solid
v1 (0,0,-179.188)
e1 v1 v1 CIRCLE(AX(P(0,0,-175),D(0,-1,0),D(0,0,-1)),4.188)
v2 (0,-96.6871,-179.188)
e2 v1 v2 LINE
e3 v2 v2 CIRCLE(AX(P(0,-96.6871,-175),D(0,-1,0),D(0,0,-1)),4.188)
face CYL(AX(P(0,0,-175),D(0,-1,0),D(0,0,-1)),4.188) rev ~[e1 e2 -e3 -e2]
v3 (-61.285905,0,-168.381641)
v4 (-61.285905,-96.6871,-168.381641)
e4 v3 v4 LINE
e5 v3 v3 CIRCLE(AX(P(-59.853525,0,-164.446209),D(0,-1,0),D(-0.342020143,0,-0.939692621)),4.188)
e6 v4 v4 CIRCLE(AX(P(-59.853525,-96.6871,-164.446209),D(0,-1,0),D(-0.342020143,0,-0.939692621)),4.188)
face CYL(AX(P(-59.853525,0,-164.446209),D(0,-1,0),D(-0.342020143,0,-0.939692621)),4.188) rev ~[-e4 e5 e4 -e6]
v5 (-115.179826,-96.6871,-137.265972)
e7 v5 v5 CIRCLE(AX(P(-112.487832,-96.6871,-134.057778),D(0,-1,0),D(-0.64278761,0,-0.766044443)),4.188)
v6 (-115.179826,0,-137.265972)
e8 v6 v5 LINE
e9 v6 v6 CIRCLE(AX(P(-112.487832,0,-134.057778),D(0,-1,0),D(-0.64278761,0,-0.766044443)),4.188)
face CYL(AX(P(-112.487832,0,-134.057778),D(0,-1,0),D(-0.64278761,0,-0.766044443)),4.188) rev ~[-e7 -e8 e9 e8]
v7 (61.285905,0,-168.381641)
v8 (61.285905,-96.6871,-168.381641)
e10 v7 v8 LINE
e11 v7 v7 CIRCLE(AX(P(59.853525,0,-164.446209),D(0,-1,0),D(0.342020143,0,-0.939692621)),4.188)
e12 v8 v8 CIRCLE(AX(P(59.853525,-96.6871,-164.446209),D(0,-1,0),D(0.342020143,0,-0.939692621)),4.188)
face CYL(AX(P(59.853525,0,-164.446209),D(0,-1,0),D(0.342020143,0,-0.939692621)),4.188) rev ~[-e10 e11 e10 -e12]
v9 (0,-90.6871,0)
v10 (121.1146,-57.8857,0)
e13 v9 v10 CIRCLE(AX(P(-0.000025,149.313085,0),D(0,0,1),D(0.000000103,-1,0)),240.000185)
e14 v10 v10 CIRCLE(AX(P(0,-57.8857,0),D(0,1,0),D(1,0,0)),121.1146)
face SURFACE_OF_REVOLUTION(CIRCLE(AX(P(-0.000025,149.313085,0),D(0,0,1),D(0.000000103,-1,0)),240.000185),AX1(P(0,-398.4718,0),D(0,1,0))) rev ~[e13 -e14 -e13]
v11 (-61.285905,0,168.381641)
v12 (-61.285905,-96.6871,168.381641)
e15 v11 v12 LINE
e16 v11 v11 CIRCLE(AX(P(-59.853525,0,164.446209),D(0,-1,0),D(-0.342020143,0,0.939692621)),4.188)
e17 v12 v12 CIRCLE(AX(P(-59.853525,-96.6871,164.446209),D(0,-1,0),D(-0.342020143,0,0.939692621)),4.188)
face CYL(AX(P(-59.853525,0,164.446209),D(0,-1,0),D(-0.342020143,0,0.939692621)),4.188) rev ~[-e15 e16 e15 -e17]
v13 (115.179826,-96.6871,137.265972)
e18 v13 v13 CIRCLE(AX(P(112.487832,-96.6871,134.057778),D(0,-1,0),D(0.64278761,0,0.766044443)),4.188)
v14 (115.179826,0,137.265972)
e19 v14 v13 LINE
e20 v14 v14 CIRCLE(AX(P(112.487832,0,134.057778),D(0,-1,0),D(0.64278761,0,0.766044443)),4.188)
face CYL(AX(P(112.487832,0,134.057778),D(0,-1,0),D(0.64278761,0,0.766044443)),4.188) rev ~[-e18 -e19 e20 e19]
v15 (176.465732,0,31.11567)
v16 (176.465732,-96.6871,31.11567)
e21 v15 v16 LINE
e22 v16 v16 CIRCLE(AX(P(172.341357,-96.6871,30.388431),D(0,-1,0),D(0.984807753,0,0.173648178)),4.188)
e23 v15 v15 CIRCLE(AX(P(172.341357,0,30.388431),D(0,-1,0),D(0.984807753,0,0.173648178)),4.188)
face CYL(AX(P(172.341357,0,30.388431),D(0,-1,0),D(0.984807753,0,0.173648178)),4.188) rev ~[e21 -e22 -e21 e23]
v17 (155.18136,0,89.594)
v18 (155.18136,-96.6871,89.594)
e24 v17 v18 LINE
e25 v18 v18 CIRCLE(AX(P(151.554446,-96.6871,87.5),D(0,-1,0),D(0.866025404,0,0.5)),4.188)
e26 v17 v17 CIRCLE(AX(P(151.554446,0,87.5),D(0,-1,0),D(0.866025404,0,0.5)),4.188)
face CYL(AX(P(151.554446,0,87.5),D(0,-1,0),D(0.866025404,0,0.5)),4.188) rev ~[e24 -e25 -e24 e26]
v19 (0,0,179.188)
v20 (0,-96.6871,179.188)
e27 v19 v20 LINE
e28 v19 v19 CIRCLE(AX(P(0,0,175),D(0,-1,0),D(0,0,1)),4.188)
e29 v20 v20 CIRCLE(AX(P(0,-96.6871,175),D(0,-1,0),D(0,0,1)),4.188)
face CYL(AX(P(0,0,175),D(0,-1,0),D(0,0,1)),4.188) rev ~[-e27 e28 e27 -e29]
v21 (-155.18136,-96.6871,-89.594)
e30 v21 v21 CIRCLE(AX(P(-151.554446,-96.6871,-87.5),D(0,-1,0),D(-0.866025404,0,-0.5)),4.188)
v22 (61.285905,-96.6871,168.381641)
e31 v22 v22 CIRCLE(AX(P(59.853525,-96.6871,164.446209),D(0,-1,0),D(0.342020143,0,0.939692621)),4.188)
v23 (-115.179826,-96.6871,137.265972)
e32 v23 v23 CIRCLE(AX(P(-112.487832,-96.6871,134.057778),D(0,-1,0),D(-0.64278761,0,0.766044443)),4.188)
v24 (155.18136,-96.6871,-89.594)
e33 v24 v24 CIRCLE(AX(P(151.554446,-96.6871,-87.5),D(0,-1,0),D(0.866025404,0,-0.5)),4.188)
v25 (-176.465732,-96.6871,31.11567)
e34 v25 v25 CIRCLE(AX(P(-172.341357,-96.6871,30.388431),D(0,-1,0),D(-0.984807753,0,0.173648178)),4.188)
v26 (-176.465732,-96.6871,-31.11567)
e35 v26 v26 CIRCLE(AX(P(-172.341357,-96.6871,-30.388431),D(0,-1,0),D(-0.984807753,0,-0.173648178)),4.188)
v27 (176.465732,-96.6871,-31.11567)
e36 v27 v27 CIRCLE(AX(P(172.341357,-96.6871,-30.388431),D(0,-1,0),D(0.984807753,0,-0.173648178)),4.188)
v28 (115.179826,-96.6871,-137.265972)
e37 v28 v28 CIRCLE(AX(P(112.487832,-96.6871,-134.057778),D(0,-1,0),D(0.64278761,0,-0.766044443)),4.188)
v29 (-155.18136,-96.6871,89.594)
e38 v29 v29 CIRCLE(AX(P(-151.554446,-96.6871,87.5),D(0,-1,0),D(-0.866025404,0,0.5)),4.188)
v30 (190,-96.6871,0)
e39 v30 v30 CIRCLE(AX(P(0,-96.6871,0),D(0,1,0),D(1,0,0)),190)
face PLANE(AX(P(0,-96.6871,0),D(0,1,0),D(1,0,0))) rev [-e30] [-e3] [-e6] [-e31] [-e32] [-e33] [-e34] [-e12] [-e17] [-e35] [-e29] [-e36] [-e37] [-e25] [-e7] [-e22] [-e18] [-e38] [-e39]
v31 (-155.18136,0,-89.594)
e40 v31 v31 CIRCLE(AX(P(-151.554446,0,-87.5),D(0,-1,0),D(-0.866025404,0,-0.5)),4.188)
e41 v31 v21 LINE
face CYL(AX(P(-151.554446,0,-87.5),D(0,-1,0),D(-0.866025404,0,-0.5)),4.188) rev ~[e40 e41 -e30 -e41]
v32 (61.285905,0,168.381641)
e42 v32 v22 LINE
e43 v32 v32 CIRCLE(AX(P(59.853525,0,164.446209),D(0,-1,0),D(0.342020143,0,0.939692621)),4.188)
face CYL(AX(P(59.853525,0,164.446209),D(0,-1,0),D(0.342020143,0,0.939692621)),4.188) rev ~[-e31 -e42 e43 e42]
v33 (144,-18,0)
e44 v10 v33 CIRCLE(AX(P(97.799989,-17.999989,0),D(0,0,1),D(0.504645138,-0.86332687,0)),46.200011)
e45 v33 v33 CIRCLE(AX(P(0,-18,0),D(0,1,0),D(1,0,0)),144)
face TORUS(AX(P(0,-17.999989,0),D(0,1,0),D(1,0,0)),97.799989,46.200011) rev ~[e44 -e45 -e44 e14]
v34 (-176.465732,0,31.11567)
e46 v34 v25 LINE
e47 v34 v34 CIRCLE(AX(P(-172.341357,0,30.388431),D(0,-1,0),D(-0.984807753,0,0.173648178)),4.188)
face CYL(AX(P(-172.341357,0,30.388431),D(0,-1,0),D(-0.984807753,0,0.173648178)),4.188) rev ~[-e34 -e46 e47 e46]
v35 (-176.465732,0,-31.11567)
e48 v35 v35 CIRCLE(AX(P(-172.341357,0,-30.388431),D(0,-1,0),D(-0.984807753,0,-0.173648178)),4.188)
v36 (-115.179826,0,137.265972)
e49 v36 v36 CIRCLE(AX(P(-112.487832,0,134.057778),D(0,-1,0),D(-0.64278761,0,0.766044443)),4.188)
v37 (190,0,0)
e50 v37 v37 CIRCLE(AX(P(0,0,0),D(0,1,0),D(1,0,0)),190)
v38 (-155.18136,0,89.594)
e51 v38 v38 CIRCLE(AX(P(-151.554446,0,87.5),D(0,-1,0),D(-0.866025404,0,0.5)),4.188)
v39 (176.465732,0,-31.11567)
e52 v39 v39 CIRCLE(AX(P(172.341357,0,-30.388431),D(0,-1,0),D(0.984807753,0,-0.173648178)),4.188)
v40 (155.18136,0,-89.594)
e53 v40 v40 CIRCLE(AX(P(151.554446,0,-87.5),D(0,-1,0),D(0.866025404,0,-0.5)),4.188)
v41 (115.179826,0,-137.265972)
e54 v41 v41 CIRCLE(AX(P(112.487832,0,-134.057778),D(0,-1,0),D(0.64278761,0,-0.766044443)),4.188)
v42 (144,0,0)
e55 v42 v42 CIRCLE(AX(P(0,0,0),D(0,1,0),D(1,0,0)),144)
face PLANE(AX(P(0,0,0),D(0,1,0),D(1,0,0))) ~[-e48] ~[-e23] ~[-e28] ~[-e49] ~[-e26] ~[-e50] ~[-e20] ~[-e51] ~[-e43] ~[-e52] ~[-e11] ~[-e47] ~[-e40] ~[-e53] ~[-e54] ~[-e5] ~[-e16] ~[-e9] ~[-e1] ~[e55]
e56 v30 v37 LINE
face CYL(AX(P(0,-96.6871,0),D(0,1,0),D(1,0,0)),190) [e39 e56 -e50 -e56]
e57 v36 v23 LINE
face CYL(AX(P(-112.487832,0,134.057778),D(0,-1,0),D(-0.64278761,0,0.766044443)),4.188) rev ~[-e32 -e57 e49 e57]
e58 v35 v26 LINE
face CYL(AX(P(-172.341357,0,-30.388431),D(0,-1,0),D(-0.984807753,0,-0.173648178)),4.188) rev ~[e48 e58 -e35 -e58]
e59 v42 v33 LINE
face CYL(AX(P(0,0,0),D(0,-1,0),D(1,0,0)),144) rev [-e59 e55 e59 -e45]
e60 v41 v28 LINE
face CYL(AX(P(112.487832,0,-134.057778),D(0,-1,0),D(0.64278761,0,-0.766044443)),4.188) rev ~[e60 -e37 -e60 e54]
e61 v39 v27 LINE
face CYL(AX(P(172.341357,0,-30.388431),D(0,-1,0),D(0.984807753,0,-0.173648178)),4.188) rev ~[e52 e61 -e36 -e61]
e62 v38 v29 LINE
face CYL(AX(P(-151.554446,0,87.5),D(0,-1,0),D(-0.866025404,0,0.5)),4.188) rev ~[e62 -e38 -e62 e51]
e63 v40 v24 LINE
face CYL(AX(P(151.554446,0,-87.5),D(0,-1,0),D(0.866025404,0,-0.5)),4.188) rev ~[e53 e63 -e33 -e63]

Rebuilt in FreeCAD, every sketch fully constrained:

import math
import FreeCAD as App
import Part
import Sketcher
from FreeCAD import Vector
Q = App.Units.Quantity

doc = App.newDocument("Part")
body = doc.addObject("PartDesign::Body", "Body")

sketch1 = doc.addObject("Sketcher::SketchObject", "Sketch")
body.addObject(sketch1)
sketch1.AttachmentSupport = (doc.XY_Plane, [""])
sketch1.MapMode = "FlatFace"
sketch1.addGeometry([
    Part.LineSegment(Vector(190, 0, 0), Vector(144, 0, 0)),
    Part.LineSegment(Vector(144, 0, 0), Vector(144, -18, 0)),
    Part.ArcOfCircle(Part.Circle(Vector(98, -18, 0), Vector(0, 0, 1), 46), math.radians(-60), math.radians(0)),
    Part.ArcOfCircle(Part.Circle(Vector(0, 149, 0), Vector(0, 0, 1), 240), math.radians(-90), math.radians(-60)),
    Part.LineSegment(Vector(0, -91, 0), Vector(0, -97, 0)),
    Part.LineSegment(Vector(0, -97, 0), Vector(190, -97, 0)),
    Part.LineSegment(Vector(190, -97, 0), Vector(190, 0, 0)),
], False)
sketch1.addConstraint([
    Sketcher.Constraint("Coincident", 0, 2, 1, 1),
    Sketcher.Constraint("Tangent", 1, 2, 2, 2),
    Sketcher.Constraint("Tangent", 2, 1, 3, 2),
    Sketcher.Constraint("Coincident", 3, 1, 4, 1),
    Sketcher.Constraint("Coincident", 4, 2, 5, 1),
    Sketcher.Constraint("Coincident", 5, 2, 6, 1),
    Sketcher.Constraint("Coincident", 6, 2, 0, 1),
    Sketcher.Constraint("Horizontal", 0),
    Sketcher.Constraint("Vertical", 1),
    Sketcher.Constraint("Vertical", 4),
    Sketcher.Constraint("Horizontal", 5),
    Sketcher.Constraint("Vertical", 6),
    Sketcher.Constraint("PointOnObject", 3, 3, -2),
    Sketcher.Constraint("PointOnObject", 0, 2, -1),
    Sketcher.Constraint("PointOnObject", 3, 1, -2),
    Sketcher.Constraint("Radius", 3, Q("240 mm")),
    Sketcher.Constraint("Radius", 2, Q("46.2 mm")),
    Sketcher.Constraint("DistanceY", 1, 2, 1, 1, Q("18 mm")),
    Sketcher.Constraint("DistanceY", 4, 2, 4, 1, Q("6 mm")),
    Sketcher.Constraint("DistanceX", 0, 2, 0, 1, Q("46 mm")),
    Sketcher.Constraint("DistanceX", 5, 1, 5, 2, Q("190 mm")),
])
revolution = doc.addObject("PartDesign::Revolution", "Revolution")
body.addObject(revolution)
revolution.Profile = sketch1
revolution.ReferenceAxis = (sketch1, ["V_Axis"])
revolution.Angle = 360

sketch2 = doc.addObject("Sketcher::SketchObject", "Sketch001")
body.addObject(sketch2)
sketch2.AttachmentSupport = (doc.XZ_Plane, [""])
sketch2.MapMode = "FlatFace"
sketch2.addGeometry(Part.Circle(Vector(0, 175, 0), Vector(0, 0, 1), 4.2), False)
sketch2.addConstraint([
    Sketcher.Constraint("PointOnObject", 0, 3, -2),
    Sketcher.Constraint("Diameter", 0, Q("8.376 mm")),
    Sketcher.Constraint("DistanceY", -1, 1, 0, 3, Q("175 mm")),
])
doc.recompute()
hole = doc.addObject("PartDesign::Hole", "Hole")
body.addObject(hole)
hole.Profile = sketch2
hole.ThreadType = "None"
hole.Diameter = 8.376
hole.DepthType = "ThroughAll"
hole.Reversed = True
doc.recompute()

polarpattern = doc.addObject("PartDesign::PolarPattern", "PolarPattern")
body.addObject(polarpattern)
polarpattern.Originals = [hole]
polarpattern.Axis = (doc.Y_Axis, [""])
polarpattern.Angle = 360
polarpattern.Occurrences = 18
body.Tip = polarpattern

doc.recompute()
